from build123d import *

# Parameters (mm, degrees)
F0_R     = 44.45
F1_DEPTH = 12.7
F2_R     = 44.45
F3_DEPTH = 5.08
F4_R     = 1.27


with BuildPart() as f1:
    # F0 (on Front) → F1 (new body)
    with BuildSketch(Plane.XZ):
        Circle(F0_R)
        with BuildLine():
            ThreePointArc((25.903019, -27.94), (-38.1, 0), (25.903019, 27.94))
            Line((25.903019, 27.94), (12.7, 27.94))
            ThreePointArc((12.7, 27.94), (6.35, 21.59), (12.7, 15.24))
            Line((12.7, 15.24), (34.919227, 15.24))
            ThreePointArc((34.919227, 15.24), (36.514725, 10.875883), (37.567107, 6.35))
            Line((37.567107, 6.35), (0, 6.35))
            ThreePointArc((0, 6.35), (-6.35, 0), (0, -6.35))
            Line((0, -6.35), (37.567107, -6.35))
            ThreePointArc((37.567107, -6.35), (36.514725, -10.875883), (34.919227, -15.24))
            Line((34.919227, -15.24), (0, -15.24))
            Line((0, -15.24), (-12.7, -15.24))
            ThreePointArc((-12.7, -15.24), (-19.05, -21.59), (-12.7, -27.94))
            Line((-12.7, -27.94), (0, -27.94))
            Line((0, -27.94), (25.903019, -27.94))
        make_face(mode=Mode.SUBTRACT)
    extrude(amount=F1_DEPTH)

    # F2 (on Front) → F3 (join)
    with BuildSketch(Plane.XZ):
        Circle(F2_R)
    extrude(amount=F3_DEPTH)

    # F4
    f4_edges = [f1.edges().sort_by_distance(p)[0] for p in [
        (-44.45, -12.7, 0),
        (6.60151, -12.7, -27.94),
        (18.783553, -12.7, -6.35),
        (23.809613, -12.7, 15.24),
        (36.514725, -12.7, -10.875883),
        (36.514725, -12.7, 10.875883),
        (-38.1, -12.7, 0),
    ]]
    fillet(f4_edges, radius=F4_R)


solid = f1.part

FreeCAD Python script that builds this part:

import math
import FreeCAD as App
import Part
import Sketcher
Q = App.Units.Quantity


def edges_at(feature, points):
    """Names of the edges that pass closest to the given points."""
    edges = feature.Shape.Edges
    near = lambda p: min(range(len(edges)), key=lambda i: edges[i].distToShape(Part.Vertex(*p))[0])
    return sorted({f"Edge{near(p) + 1}" for p in points})

doc = App.newDocument("Part")
body = doc.addObject("PartDesign::Body", "Body")

# Sketch on XZ plane
sketch1 = body.newObject("Sketcher::SketchObject", "Sketch")
sketch1.AttachmentSupport = (doc.getObject("XZ_Plane"), [""])
sketch1.MapMode = "FlatFace"
sketch1.addGeometry(Part.Circle(App.Vector(0, 0, 0), App.Vector(0, 0, 1), 44), False)
sketch1.addGeometry(Part.LineSegment(App.Vector(-13, -28, 0), App.Vector(26, -28, 0)), False)
sketch1.addGeometry(Part.ArcOfCircle(Part.Circle(App.Vector(0, 0, 0), App.Vector(0, 0, 1), 38), math.radians(47), math.radians(313)), False)
sketch1.addGeometry(Part.LineSegment(App.Vector(26, 28, 0), App.Vector(13, 28, 0)), False)
sketch1.addGeometry(Part.ArcOfCircle(Part.Circle(App.Vector(13, 22, 0), App.Vector(0, 0, 1), 6), math.radians(90), math.radians(270)), False)
sketch1.addGeometry(Part.LineSegment(App.Vector(13, 15, 0), App.Vector(35, 15, 0)), False)
sketch1.addGeometry(Part.ArcOfCircle(Part.Circle(App.Vector(0, 0, 0), App.Vector(0, 0, 1), 38), math.radians(9.59), math.radians(23.58)), False)
sketch1.addGeometry(Part.LineSegment(App.Vector(38, 6, 0), App.Vector(0, 6, 0)), False)
sketch1.addGeometry(Part.ArcOfCircle(Part.Circle(App.Vector(0, 0, 0), App.Vector(0, 0, 1), 6), math.radians(90), math.radians(270)), False)
sketch1.addGeometry(Part.LineSegment(App.Vector(0, -6, 0), App.Vector(38, -6, 0)), False)
sketch1.addGeometry(Part.ArcOfCircle(Part.Circle(App.Vector(0, 0, 0), App.Vector(0, 0, 1), 38), math.radians(-23.58), math.radians(-9.59)), False)
sketch1.addGeometry(Part.LineSegment(App.Vector(35, -15, 0), App.Vector(-13, -15, 0)), False)
sketch1.addGeometry(Part.ArcOfCircle(Part.Circle(App.Vector(-13, -22, 0), App.Vector(0, 0, 1), 6), math.radians(90), math.radians(270)), False)
sketch1.addConstraint(Sketcher.Constraint("Coincident", 1, 2, 2, 2))
sketch1.addConstraint(Sketcher.Constraint("Coincident", 2, 1, 3, 1))
sketch1.addConstraint(Sketcher.Constraint("Tangent", 3, 2, 4, 1))
sketch1.addConstraint(Sketcher.Constraint("Tangent", 4, 2, 5, 1))
sketch1.addConstraint(Sketcher.Constraint("Coincident", 5, 2, 6, 2))
sketch1.addConstraint(Sketcher.Constraint("Coincident", 6, 1, 7, 1))
sketch1.addConstraint(Sketcher.Constraint("Tangent", 7, 2, 8, 1))
sketch1.addConstraint(Sketcher.Constraint("Tangent", 8, 2, 9, 1))
sketch1.addConstraint(Sketcher.Constraint("Coincident", 9, 2, 10, 2))
sketch1.addConstraint(Sketcher.Constraint("Coincident", 10, 1, 11, 1))
sketch1.addConstraint(Sketcher.Constraint("Tangent", 11, 2, 12, 1))
sketch1.addConstraint(Sketcher.Constraint("Tangent", 12, 2, 1, 1))
sketch1.addConstraint(Sketcher.Constraint("Horizontal", 1))
sketch1.addConstraint(Sketcher.Constraint("Horizontal", 3))
sketch1.addConstraint(Sketcher.Constraint("Horizontal", 5))
sketch1.addConstraint(Sketcher.Constraint("Horizontal", 7))
sketch1.addConstraint(Sketcher.Constraint("Horizontal", 9))
sketch1.addConstraint(Sketcher.Constraint("Horizontal", 11))
sketch1.addConstraint(Sketcher.Constraint("Coincident", 0, 3, -1, 1))
sketch1.addConstraint(Sketcher.Constraint("Coincident", 2, 3, -1, 1))
sketch1.addConstraint(Sketcher.Constraint("Coincident", 8, 3, -1, 1))
sketch1.addConstraint(Sketcher.Constraint("Equal", 4, 8))
sketch1.addConstraint(Sketcher.Constraint("Equal", 6, 10))
sketch1.addConstraint(Sketcher.Constraint("Equal", 8, 12))
sketch1.addConstraint(Sketcher.Constraint("Symmetric", 4, 3, 12, 3, -1, 1))
sketch1.addConstraint(Sketcher.Constraint("Symmetric", 6, 3, 10, 3, -1))
sketch1.addConstraint(Sketcher.Constraint("Diameter", 0, Q("3.5 in")))
sketch1.addConstraint(Sketcher.Constraint("Radius", 2, Q("1.5 in")))
sketch1.addConstraint(Sketcher.Constraint("Radius", 4, Q("0.25 in")))
sketch1.addConstraint(Sketcher.Constraint("DistanceX", -1, 1, 4, 3, Q("0.5 in")))
sketch1.addConstraint(Sketcher.Constraint("DistanceY", 1, 2, -1, 1, Q("1.1 in")))
sketch1.addConstraint(Sketcher.Constraint("Radius", 6, 38.100085))
sketch1.addConstraint(Sketcher.Constraint("DistanceX", 6, 3, 1, 2, 25.903101))
sketch1.addConstraint(Sketcher.Constraint("DistanceX", 5, 1, 5, 2, 22.219227))
pad1 = body.newObject("PartDesign::Pad", "Pad")
pad1.Profile = sketch1
pad1.Length = Q("0.5 in")

# Sketch on XZ plane
sketch2 = body.newObject("Sketcher::SketchObject", "Sketch001")
sketch2.AttachmentSupport = (doc.getObject("XZ_Plane"), [""])
sketch2.MapMode = "FlatFace"
sketch2.addGeometry(Part.Circle(App.Vector(0, 0, 0), App.Vector(0, 0, 1), 44), False)
sketch2.addConstraint(Sketcher.Constraint("Coincident", 0, 3, -1, 1))
sketch2.addConstraint(Sketcher.Constraint("Diameter", 0, Q("3.5 in")))
pad2 = body.newObject("PartDesign::Pad", "Pad001")
pad2.Profile = sketch2
pad2.Length = Q("0.2 in")
doc.recompute()

fillet = body.newObject("PartDesign::Fillet", "Fillet")
fillet.Base = (pad2, edges_at(pad2, [
    (-44.45, -12.7, 0),
    (6.602, -12.7, -27.94),
    (18.784, -12.7, -6.35),
    (23.81, -12.7, 15.24),
    (36.515, -12.7, -10.876),
    (36.515, -12.7, 10.876),
    (-38.1, -12.7, 0),
]))
fillet.Radius = Q("0.05 in")

doc.recompute()
